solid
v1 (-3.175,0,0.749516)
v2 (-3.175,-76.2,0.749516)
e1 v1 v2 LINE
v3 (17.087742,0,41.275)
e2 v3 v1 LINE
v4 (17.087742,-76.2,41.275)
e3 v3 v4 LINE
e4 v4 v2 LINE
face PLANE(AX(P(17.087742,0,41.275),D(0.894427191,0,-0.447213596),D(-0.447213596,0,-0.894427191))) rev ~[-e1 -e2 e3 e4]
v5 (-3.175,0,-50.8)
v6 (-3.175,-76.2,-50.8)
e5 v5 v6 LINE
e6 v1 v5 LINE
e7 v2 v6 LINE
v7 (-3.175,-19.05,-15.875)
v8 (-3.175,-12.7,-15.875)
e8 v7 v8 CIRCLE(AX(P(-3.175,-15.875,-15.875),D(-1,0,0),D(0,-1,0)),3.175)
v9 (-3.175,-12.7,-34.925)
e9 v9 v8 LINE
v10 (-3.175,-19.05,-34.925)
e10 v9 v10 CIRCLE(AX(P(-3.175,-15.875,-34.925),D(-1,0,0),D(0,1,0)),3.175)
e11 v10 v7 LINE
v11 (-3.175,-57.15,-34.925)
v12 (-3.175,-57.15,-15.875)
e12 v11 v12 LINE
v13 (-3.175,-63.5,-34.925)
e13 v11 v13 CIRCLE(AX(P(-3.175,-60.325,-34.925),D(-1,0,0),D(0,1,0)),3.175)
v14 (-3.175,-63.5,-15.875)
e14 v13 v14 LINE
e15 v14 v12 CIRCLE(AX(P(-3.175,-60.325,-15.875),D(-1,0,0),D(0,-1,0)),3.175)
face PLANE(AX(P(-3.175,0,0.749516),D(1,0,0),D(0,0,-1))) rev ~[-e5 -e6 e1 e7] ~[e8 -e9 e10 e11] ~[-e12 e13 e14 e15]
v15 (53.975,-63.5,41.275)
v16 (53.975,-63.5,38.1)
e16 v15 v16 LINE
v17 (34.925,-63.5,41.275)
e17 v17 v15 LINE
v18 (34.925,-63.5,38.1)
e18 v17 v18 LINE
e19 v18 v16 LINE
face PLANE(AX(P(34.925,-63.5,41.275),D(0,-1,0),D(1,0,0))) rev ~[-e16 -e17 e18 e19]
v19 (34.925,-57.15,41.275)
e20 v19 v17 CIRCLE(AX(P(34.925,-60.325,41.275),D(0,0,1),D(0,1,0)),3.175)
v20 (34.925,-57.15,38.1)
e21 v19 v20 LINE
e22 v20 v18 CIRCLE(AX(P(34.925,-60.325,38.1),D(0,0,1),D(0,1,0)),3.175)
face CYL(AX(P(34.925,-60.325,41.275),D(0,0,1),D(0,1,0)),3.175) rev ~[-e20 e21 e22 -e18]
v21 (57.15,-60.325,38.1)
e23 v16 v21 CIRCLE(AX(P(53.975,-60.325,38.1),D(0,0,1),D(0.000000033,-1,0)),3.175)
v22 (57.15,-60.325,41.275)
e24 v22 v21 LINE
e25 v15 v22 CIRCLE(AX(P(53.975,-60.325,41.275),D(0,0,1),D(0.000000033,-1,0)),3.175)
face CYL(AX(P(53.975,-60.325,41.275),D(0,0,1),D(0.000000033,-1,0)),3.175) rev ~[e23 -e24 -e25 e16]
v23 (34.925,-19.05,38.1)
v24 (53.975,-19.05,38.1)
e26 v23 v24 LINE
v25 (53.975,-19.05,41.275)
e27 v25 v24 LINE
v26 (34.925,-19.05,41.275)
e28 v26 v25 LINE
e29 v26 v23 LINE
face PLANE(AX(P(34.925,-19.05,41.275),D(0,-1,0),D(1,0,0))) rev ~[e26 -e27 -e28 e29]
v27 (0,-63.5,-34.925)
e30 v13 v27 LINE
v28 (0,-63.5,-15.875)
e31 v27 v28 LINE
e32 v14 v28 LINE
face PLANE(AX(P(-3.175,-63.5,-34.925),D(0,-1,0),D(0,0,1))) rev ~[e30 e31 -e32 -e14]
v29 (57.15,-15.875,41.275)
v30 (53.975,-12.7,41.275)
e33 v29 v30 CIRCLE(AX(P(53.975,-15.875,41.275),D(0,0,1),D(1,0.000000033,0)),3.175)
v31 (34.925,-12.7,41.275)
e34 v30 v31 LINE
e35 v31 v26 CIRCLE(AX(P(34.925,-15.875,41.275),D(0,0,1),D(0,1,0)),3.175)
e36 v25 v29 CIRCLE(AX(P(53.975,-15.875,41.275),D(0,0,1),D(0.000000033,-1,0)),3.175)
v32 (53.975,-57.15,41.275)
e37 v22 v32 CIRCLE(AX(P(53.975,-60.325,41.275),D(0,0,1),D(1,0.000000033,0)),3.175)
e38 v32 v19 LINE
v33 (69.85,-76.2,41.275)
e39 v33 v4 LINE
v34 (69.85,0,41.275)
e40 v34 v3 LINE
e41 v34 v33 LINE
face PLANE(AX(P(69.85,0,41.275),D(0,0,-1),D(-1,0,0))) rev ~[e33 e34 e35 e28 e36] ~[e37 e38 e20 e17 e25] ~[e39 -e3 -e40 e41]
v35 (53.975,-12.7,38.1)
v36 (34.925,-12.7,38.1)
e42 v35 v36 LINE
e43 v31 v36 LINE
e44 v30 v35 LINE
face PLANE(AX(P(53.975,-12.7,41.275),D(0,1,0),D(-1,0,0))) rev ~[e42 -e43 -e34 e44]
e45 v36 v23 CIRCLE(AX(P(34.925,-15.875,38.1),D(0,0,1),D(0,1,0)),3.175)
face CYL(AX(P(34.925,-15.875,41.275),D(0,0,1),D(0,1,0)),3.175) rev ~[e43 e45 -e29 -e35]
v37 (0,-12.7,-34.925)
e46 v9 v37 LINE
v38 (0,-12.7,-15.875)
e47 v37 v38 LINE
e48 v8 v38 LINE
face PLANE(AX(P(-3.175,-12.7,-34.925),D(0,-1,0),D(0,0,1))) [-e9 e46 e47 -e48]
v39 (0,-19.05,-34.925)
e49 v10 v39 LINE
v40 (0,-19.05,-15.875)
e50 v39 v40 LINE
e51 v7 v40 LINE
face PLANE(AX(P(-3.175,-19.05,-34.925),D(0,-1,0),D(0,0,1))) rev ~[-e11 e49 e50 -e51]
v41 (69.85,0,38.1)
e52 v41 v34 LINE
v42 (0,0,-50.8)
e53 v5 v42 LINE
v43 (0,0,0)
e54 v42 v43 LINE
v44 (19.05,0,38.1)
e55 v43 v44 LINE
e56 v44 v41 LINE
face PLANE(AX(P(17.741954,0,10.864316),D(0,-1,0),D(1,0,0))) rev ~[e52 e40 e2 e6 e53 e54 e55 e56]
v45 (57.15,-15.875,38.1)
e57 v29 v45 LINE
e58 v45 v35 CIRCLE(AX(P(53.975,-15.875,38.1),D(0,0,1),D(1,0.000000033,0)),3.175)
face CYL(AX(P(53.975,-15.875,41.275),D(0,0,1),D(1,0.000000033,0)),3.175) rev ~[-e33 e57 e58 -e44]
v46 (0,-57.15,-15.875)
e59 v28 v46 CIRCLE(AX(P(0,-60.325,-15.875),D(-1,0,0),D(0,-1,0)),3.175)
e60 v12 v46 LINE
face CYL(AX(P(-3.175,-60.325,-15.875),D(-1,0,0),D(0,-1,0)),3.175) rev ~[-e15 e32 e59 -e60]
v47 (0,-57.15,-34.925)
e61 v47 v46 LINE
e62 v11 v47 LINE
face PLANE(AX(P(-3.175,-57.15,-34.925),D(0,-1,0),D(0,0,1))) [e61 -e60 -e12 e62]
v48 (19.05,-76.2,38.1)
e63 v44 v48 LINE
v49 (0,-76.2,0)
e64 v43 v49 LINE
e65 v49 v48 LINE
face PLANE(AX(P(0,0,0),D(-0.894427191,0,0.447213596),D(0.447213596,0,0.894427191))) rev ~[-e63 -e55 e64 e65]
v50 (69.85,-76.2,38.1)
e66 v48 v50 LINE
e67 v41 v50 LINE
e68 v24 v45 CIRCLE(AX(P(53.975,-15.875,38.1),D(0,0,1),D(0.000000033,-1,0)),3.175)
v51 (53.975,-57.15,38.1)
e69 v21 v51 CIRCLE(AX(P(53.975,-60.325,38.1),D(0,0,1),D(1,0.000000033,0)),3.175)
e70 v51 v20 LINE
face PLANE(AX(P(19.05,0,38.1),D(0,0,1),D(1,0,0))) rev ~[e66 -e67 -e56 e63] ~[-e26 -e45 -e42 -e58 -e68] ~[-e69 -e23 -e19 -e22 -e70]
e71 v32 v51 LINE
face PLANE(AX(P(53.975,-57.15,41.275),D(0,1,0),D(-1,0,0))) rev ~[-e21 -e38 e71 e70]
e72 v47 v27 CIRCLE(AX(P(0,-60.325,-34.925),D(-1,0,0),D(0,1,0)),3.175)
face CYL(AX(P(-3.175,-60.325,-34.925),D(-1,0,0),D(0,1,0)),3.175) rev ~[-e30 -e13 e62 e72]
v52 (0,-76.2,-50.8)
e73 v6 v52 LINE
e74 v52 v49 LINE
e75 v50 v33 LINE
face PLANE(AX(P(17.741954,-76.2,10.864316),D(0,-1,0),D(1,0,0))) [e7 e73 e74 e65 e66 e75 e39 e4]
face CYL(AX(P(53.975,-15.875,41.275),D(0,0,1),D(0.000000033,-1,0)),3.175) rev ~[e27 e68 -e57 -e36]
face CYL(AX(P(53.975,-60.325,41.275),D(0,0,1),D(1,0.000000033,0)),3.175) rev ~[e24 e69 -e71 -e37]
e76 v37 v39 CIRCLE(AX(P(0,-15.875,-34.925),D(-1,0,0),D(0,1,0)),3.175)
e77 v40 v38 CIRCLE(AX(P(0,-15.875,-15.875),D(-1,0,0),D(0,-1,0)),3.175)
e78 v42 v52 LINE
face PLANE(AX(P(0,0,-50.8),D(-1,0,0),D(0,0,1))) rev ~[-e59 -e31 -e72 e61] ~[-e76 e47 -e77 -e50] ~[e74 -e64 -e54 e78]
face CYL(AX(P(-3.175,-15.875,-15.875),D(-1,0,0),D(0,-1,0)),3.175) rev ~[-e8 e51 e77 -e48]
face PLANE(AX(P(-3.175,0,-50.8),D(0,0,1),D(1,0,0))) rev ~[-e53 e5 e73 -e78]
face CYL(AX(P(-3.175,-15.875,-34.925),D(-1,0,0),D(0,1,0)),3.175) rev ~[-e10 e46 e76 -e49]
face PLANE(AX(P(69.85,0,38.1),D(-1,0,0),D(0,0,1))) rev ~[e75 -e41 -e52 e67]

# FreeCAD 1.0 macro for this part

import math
import FreeCAD as App
import Part
import Sketcher

V = App.Vector
Q = App.Units.Quantity

doc = App.newDocument("Part")
body = doc.addObject("PartDesign::Body", "Body")

# Sketch on XZ plane
sketch1 = doc.addObject("Sketcher::SketchObject", "Sketch")
body.addObject(sketch1)
sketch1.AttachmentSupport = (doc.XZ_Plane, [""])
sketch1.MapMode = "FlatFace"
sketch1.addGeometry(Part.LineSegment(V(0, -50.8, 0), V(0, 0, 0)), False)
sketch1.addGeometry(Part.LineSegment(V(0, 0, 0), V(19.1, 38.1, 0)), False)
sketch1.addGeometry(Part.LineSegment(V(19.1, 38.1, 0), V(69.8, 38.1, 0)), False)
sketch1.addGeometry(Part.LineSegment(V(69.8, 38.1, 0), V(69.8, 41.3, 0)), False)
sketch1.addGeometry(Part.LineSegment(V(69.8, 41.3, 0), V(17.1, 41.3, 0)), False)
sketch1.addGeometry(Part.LineSegment(V(17.1, 41.3, 0), V(-3.2, 0.7, 0)), False)
sketch1.addGeometry(Part.LineSegment(V(-3.2, 0.7, 0), V(-3.2, -50.8, 0)), False)
sketch1.addGeometry(Part.LineSegment(V(-3.2, -50.8, 0), V(0, -50.8, 0)), False)
sketch1.addConstraint(Sketcher.Constraint("Coincident", 0, 2, 1, 1))
sketch1.addConstraint(Sketcher.Constraint("Coincident", 1, 2, 2, 1))
sketch1.addConstraint(Sketcher.Constraint("Coincident", 2, 2, 3, 1))
sketch1.addConstraint(Sketcher.Constraint("Coincident", 3, 2, 4, 1))
sketch1.addConstraint(Sketcher.Constraint("Coincident", 4, 2, 5, 1))
sketch1.addConstraint(Sketcher.Constraint("Coincident", 5, 2, 6, 1))
sketch1.addConstraint(Sketcher.Constraint("Coincident", 6, 2, 7, 1))
sketch1.addConstraint(Sketcher.Constraint("Coincident", 7, 2, 0, 1))
sketch1.addConstraint(Sketcher.Constraint("Vertical", 0))
sketch1.addConstraint(Sketcher.Constraint("Horizontal", 2))
sketch1.addConstraint(Sketcher.Constraint("Vertical", 3))
sketch1.addConstraint(Sketcher.Constraint("Horizontal", 4))
sketch1.addConstraint(Sketcher.Constraint("Vertical", 6))
sketch1.addConstraint(Sketcher.Constraint("Horizontal", 7))
sketch1.addConstraint(Sketcher.Constraint("Coincident", 0, 2, -1, 1))
sketch1.addConstraint(Sketcher.Constraint("Parallel", 1, 5))
sketch1.addConstraint(Sketcher.Constraint("Equal", 2, 0))
sketch1.addConstraint(Sketcher.Constraint("Equal", 7, 3))
sketch1.addConstraint(Sketcher.Constraint("DistanceX", 2, 1, 2, 2, Q("2 in")))
sketch1.addConstraint(Sketcher.Constraint("DistanceY", -1, 1, 1, 2, Q("1.5 in")))
sketch1.addConstraint(Sketcher.Constraint("DistanceX", 7, 1, 7, 2, Q("0.125 in")))
sketch1.addConstraint(Sketcher.Constraint("DistanceX", -1, 1, 1, 2, Q("0.75 in")))
sketch1.addConstraint(Sketcher.Constraint("Distance", 5, 45.308869))
pad1 = doc.addObject("PartDesign::Pad", "Pad")
body.addObject(pad1)
pad1.Profile = sketch1
pad1.Length = Q("3 in")

# Sketch on XY plane
sketch2 = doc.addObject("Sketcher::SketchObject", "Sketch001")
body.addObject(sketch2)
sketch2.AttachmentSupport = (doc.XY_Plane, [""])
sketch2.MapMode = "FlatFace"
sketch2.AttachmentOffset = App.Placement(V(0, 0, 1.625 * 25.4), App.Rotation())
sketch2.addGeometry(Part.ArcOfCircle(Part.Circle(V(54, -15.9, 0), V(0, 0, 1), 3.2), math.radians(-90), math.radians(0)), False)
sketch2.addGeometry(Part.ArcOfCircle(Part.Circle(V(54, -15.9, 0), V(0, 0, 1), 3.2), math.radians(0), math.radians(90)), False)
sketch2.addGeometry(Part.LineSegment(V(54, -12.7, 0), V(34.9, -12.7, 0)), False)
sketch2.addGeometry(Part.ArcOfCircle(Part.Circle(V(34.9, -15.9, 0), V(0, 0, 1), 3.2), math.radians(90), math.radians(270)), False)
sketch2.addGeometry(Part.LineSegment(V(34.9, -19.1, 0), V(54, -19.1, 0)), False)
sketch2.addConstraint(Sketcher.Constraint("Tangent", 0, 2, 1, 1))
sketch2.addConstraint(Sketcher.Constraint("Tangent", 1, 2, 2, 1))
sketch2.addConstraint(Sketcher.Constraint("Tangent", 2, 2, 3, 1))
sketch2.addConstraint(Sketcher.Constraint("Tangent", 3, 2, 4, 1))
sketch2.addConstraint(Sketcher.Constraint("Tangent", 4, 2, 0, 1))
sketch2.addConstraint(Sketcher.Constraint("Horizontal", 2))
sketch2.addConstraint(Sketcher.Constraint("Horizontal", 4))
sketch2.addConstraint(Sketcher.Constraint("Equal", 0, 1))
sketch2.addConstraint(Sketcher.Constraint("Horizontal", 3, 3, 0, 2))
sketch2.addConstraint(Sketcher.Constraint("Radius", 0, Q("0.125 in")))
sketch2.addConstraint(Sketcher.Constraint("DistanceX", 2, 2, 2, 1, Q("0.75 in")))
sketch2.addConstraint(Sketcher.Constraint("DistanceY", 1, 2, -1, 1, Q("0.5 in")))
sketch2.addConstraint(Sketcher.Constraint("DistanceX", -1, 1, 0, 2, Q("2.25 in")))
pocket1 = doc.addObject("PartDesign::Pocket", "Pocket")
body.addObject(pocket1)
pocket1.Profile = sketch2
pocket1.Type = "ThroughAll"

# Sketch on XY plane
sketch3 = doc.addObject("Sketcher::SketchObject", "Sketch002")
body.addObject(sketch3)
sketch3.AttachmentSupport = (doc.XY_Plane, [""])
sketch3.MapMode = "FlatFace"
sketch3.AttachmentOffset = App.Placement(V(0, 0, 1.625 * 25.4), App.Rotation())
sketch3.addGeometry(Part.ArcOfCircle(Part.Circle(V(34.9, -60.3, 0), V(0, 0, 1), 3.2), math.radians(90), math.radians(270)), False)
sketch3.addGeometry(Part.LineSegment(V(34.9, -63.5, 0), V(54, -63.5, 0)), False)
sketch3.addGeometry(Part.ArcOfCircle(Part.Circle(V(54, -60.3, 0), V(0, 0, 1), 3.2), math.radians(-90), math.radians(0)), False)
sketch3.addGeometry(Part.ArcOfCircle(Part.Circle(V(54, -60.3, 0), V(0, 0, 1), 3.2), math.radians(0), math.radians(90)), False)
sketch3.addGeometry(Part.LineSegment(V(54, -57.1, 0), V(34.9, -57.1, 0)), False)
sketch3.addConstraint(Sketcher.Constraint("Tangent", 0, 2, 1, 1))
sketch3.addConstraint(Sketcher.Constraint("Tangent", 1, 2, 2, 1))
sketch3.addConstraint(Sketcher.Constraint("Tangent", 2, 2, 3, 1))
sketch3.addConstraint(Sketcher.Constraint("Tangent", 3, 2, 4, 1))
sketch3.addConstraint(Sketcher.Constraint("Tangent", 4, 2, 0, 1))
sketch3.addConstraint(Sketcher.Constraint("Horizontal", 1))
sketch3.addConstraint(Sketcher.Constraint("Horizontal", 4))
sketch3.addConstraint(Sketcher.Constraint("Equal", 0, 2))
sketch3.addConstraint(Sketcher.Constraint("Horizontal", 3, 3, 2, 2))
sketch3.addConstraint(Sketcher.Constraint("Radius", 0, Q("0.125 in")))
sketch3.addConstraint(Sketcher.Constraint("DistanceX", 1, 1, 1, 2, Q("0.75 in")))
sketch3.addConstraint(Sketcher.Constraint("DistanceY", 0, 2, -1, 1, Q("2.5 in")))
sketch3.addConstraint(Sketcher.Constraint("DistanceX", -1, 1, 2, 2, Q("2.25 in")))
pocket2 = doc.addObject("PartDesign::Pocket", "Pocket001")
body.addObject(pocket2)
pocket2.Profile = sketch3
pocket2.Type = "ThroughAll"

# Sketch on YZ plane
sketch4 = doc.addObject("Sketcher::SketchObject", "Sketch003")
body.addObject(sketch4)
sketch4.AttachmentSupport = (doc.YZ_Plane, [""])
sketch4.MapMode = "FlatFace"
sketch4.AttachmentOffset = App.Placement(V(0, 0, -0.125 * 25.4), App.Rotation())
sketch4.addGeometry(Part.ArcOfCircle(Part.Circle(V(-15.9, -34.9, 0), V(0, 0, 1), 3.2), math.radians(180), math.radians(360)), False)
sketch4.addGeometry(Part.LineSegment(V(-19.1, -34.9, 0), V(-19.1, -15.9, 0)), False)
sketch4.addGeometry(Part.ArcOfCircle(Part.Circle(V(-15.9, -15.9, 0), V(0, 0, 1), 3.2), math.radians(0), math.radians(180)), False)
sketch4.addGeometry(Part.LineSegment(V(-12.7, -15.9, 0), V(-12.7, -34.9, 0)), False)
sketch4.addConstraint(Sketcher.Constraint("Tangent", 0, 1, 1, 1))
sketch4.addConstraint(Sketcher.Constraint("Tangent", 1, 2, 2, 2))
sketch4.addConstraint(Sketcher.Constraint("Tangent", 2, 1, 3, 1))
sketch4.addConstraint(Sketcher.Constraint("Tangent", 3, 2, 0, 2))
sketch4.addConstraint(Sketcher.Constraint("Vertical", 1))
sketch4.addConstraint(Sketcher.Constraint("Vertical", 3))
sketch4.addConstraint(Sketcher.Constraint("Radius", 0, Q("0.125 in")))
sketch4.addConstraint(Sketcher.Constraint("DistanceY", 1, 1, 1, 2, Q("0.75 in")))
sketch4.addConstraint(Sketcher.Constraint("DistanceX", 2, 1, -1, 1, Q("0.5 in")))
sketch4.addConstraint(Sketcher.Constraint("DistanceY", 0, 3, -1, 1, Q("1.375 in")))
pocket3 = doc.addObject("PartDesign::Pocket", "Pocket002")
body.addObject(pocket3)
pocket3.Profile = sketch4
pocket3.Type = "ThroughAll"
pocket3.Reversed = True

# Sketch on YZ plane
sketch5 = doc.addObject("Sketcher::SketchObject", "Sketch004")
body.addObject(sketch5)
sketch5.AttachmentSupport = (doc.YZ_Plane, [""])
sketch5.MapMode = "FlatFace"
sketch5.AttachmentOffset = App.Placement(V(0, 0, -0.125 * 25.4), App.Rotation())
sketch5.addGeometry(Part.ArcOfCircle(Part.Circle(V(-60.3, -15.9, 0), V(0, 0, 1), 3.2), math.radians(0), math.radians(180)), False)
sketch5.addGeometry(Part.LineSegment(V(-57.1, -15.9, 0), V(-57.1, -34.9, 0)), False)
sketch5.addGeometry(Part.ArcOfCircle(Part.Circle(V(-60.3, -34.9, 0), V(0, 0, 1), 3.2), math.radians(180), math.radians(360)), False)
sketch5.addGeometry(Part.LineSegment(V(-63.5, -34.9, 0), V(-63.5, -15.9, 0)), False)
sketch5.addConstraint(Sketcher.Constraint("Tangent", 0, 1, 1, 1))
sketch5.addConstraint(Sketcher.Constraint("Tangent", 1, 2, 2, 2))
sketch5.addConstraint(Sketcher.Constraint("Tangent", 2, 1, 3, 1))
sketch5.addConstraint(Sketcher.Constraint("Tangent", 3, 2, 0, 2))
sketch5.addConstraint(Sketcher.Constraint("Vertical", 1))
sketch5.addConstraint(Sketcher.Constraint("Vertical", 3))
sketch5.addConstraint(Sketcher.Constraint("Radius", 0, Q("0.125 in")))
sketch5.addConstraint(Sketcher.Constraint("DistanceY", 1, 2, 1, 1, Q("0.75 in")))
sketch5.addConstraint(Sketcher.Constraint("DistanceX", 2, 1, -1, 1, Q("2.5 in")))
sketch5.addConstraint(Sketcher.Constraint("DistanceY", 0, 3, -1, 1, Q("0.625 in")))
pocket4 = doc.addObject("PartDesign::Pocket", "Pocket003")
body.addObject(pocket4)
pocket4.Profile = sketch5
pocket4.Type = "ThroughAll"
pocket4.Reversed = True

doc.recompute()
